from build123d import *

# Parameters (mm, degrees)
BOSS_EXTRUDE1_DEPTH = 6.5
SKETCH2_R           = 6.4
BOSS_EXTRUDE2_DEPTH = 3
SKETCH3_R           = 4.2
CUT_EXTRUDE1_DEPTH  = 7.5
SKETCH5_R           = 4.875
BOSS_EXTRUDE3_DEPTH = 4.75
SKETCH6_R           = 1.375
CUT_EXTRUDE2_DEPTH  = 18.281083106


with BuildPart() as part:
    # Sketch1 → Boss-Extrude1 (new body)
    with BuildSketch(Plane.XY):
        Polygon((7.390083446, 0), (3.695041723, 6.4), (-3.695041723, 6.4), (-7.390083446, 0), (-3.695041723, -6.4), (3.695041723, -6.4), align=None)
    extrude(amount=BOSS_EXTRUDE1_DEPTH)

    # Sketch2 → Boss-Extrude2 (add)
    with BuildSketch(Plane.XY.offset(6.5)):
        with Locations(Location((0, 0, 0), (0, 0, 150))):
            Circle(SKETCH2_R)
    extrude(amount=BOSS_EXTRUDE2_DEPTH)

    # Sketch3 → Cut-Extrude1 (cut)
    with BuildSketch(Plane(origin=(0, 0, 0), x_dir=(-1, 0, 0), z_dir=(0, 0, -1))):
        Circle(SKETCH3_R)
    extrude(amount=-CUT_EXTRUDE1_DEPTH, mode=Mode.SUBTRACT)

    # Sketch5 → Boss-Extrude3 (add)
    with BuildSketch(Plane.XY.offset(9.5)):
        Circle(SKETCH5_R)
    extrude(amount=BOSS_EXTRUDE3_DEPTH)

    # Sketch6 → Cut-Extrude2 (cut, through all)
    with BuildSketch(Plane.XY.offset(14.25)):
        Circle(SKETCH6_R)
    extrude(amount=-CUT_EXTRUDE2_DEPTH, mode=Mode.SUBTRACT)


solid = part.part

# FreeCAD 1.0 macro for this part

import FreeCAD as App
import Part
import Sketcher
Q = App.Units.Quantity


def add_polygon(sketch, points):
    """Adds a closed chain of lines whose ends are joined by coincident constraints."""
    first, n = sketch.GeometryCount, len(points)
    for a, b in zip(points, points[1:] + points[:1]):
        sketch.addGeometry(Part.LineSegment(App.Vector(*a, 0), App.Vector(*b, 0)), False)
    for i in range(n):
        sketch.addConstraint(Sketcher.Constraint("Coincident", first + i, 2, first + (i + 1) % n, 1))

doc = App.newDocument("Part")
body = doc.addObject("PartDesign::Body", "Body")

# Sketch on XY plane
sketch1 = body.newObject("Sketcher::SketchObject", "Sketch")
sketch1.AttachmentSupport = (doc.getObject("XY_Plane"), [""])
sketch1.MapMode = "FlatFace"
add_polygon(sketch1, [(7, 0), (4, 6), (-4, 6), (-7, 0), (-4, -6), (4, -6)])  # lines 0-5
sketch1.addConstraint(Sketcher.Constraint("Horizontal", 1))
sketch1.addConstraint(Sketcher.Constraint("Horizontal", 4))
sketch1.addConstraint(Sketcher.Constraint("Symmetric", 0, 2, 3, 2, -1, 1))
sketch1.addConstraint(Sketcher.Constraint("Symmetric", 2, 2, 5, 2, -1, 1))
sketch1.addConstraint(Sketcher.Constraint("PointOnObject", 2, 2, -1))
sketch1.addConstraint(Sketcher.Constraint("Parallel", 2, 5))
sketch1.addConstraint(Sketcher.Constraint("Vertical", 1, 2, 3, 2))
sketch1.addConstraint(Sketcher.Constraint("Angle", 0, Q("120 deg")))
sketch1.addConstraint(Sketcher.Constraint("DistanceY", -1, 1, 0, 2, Q("6.4 mm")))
sketch1.addConstraint(Sketcher.Constraint("DistanceX", 1, 2, 1, 1, Q("7.390083 mm")))
pad1 = body.newObject("PartDesign::Pad", "Pad")
pad1.Profile = sketch1
pad1.Length = 6.5

# Sketch on XY plane
sketch2 = body.newObject("Sketcher::SketchObject", "Sketch001")
sketch2.AttachmentSupport = (doc.getObject("XY_Plane"), [""])
sketch2.MapMode = "FlatFace"
sketch2.AttachmentOffset = App.Placement(App.Vector(0, 0, 6.5), App.Rotation())
sketch2.addGeometry(Part.Circle(App.Vector(0, 0, 0), App.Vector(0, 0, 1), 6), False)
sketch2.addConstraint(Sketcher.Constraint("Coincident", 0, 3, -1, 1))
sketch2.addConstraint(Sketcher.Constraint("Diameter", 0, Q("12.8 mm")))
pad2 = body.newObject("PartDesign::Pad", "Pad001")
pad2.Profile = sketch2
pad2.Length = 3

# Sketch on XY plane
sketch3 = body.newObject("Sketcher::SketchObject", "Sketch002")
sketch3.AttachmentSupport = (doc.getObject("XY_Plane"), [""])
sketch3.MapMode = "FlatFace"
sketch3.addGeometry(Part.Circle(App.Vector(0, 0, 0), App.Vector(0, 0, 1), 4.2), False)
sketch3.addConstraint(Sketcher.Constraint("Coincident", 0, 3, -1, 1))
sketch3.addConstraint(Sketcher.Constraint("Diameter", 0, Q("8.4 mm")))
pocket1 = body.newObject("PartDesign::Pocket", "Pocket")
pocket1.Profile = sketch3
pocket1.Length = 7.5
pocket1.Reversed = True

# Sketch on XY plane
sketch4 = body.newObject("Sketcher::SketchObject", "Sketch003")
sketch4.AttachmentSupport = (doc.getObject("XY_Plane"), [""])
sketch4.MapMode = "FlatFace"
sketch4.AttachmentOffset = App.Placement(App.Vector(0, 0, 9.5), App.Rotation())
sketch4.addGeometry(Part.Circle(App.Vector(0, 0, 0), App.Vector(0, 0, 1), 4.9), False)
sketch4.addConstraint(Sketcher.Constraint("Coincident", 0, 3, -1, 1))
sketch4.addConstraint(Sketcher.Constraint("Diameter", 0, Q("9.75 mm")))
pad3 = body.newObject("PartDesign::Pad", "Pad002")
pad3.Profile = sketch4
pad3.Length = 4.75

# Sketch on XY plane
sketch5 = body.newObject("Sketcher::SketchObject", "Sketch004")
sketch5.AttachmentSupport = (doc.getObject("XY_Plane"), [""])
sketch5.MapMode = "FlatFace"
sketch5.AttachmentOffset = App.Placement(App.Vector(0, 0, 14.25), App.Rotation())
sketch5.addGeometry(Part.Circle(App.Vector(0, 0, 0), App.Vector(0, 0, 1), 1.4), False)
sketch5.addConstraint(Sketcher.Constraint("Coincident", 0, 3, -1, 1))
sketch5.addConstraint(Sketcher.Constraint("Diameter", 0, Q("2.75 mm")))
pocket2 = body.newObject("PartDesign::Pocket", "Pocket001")
pocket2.Profile = sketch5
pocket2.Type = "ThroughAll"

doc.recompute()
